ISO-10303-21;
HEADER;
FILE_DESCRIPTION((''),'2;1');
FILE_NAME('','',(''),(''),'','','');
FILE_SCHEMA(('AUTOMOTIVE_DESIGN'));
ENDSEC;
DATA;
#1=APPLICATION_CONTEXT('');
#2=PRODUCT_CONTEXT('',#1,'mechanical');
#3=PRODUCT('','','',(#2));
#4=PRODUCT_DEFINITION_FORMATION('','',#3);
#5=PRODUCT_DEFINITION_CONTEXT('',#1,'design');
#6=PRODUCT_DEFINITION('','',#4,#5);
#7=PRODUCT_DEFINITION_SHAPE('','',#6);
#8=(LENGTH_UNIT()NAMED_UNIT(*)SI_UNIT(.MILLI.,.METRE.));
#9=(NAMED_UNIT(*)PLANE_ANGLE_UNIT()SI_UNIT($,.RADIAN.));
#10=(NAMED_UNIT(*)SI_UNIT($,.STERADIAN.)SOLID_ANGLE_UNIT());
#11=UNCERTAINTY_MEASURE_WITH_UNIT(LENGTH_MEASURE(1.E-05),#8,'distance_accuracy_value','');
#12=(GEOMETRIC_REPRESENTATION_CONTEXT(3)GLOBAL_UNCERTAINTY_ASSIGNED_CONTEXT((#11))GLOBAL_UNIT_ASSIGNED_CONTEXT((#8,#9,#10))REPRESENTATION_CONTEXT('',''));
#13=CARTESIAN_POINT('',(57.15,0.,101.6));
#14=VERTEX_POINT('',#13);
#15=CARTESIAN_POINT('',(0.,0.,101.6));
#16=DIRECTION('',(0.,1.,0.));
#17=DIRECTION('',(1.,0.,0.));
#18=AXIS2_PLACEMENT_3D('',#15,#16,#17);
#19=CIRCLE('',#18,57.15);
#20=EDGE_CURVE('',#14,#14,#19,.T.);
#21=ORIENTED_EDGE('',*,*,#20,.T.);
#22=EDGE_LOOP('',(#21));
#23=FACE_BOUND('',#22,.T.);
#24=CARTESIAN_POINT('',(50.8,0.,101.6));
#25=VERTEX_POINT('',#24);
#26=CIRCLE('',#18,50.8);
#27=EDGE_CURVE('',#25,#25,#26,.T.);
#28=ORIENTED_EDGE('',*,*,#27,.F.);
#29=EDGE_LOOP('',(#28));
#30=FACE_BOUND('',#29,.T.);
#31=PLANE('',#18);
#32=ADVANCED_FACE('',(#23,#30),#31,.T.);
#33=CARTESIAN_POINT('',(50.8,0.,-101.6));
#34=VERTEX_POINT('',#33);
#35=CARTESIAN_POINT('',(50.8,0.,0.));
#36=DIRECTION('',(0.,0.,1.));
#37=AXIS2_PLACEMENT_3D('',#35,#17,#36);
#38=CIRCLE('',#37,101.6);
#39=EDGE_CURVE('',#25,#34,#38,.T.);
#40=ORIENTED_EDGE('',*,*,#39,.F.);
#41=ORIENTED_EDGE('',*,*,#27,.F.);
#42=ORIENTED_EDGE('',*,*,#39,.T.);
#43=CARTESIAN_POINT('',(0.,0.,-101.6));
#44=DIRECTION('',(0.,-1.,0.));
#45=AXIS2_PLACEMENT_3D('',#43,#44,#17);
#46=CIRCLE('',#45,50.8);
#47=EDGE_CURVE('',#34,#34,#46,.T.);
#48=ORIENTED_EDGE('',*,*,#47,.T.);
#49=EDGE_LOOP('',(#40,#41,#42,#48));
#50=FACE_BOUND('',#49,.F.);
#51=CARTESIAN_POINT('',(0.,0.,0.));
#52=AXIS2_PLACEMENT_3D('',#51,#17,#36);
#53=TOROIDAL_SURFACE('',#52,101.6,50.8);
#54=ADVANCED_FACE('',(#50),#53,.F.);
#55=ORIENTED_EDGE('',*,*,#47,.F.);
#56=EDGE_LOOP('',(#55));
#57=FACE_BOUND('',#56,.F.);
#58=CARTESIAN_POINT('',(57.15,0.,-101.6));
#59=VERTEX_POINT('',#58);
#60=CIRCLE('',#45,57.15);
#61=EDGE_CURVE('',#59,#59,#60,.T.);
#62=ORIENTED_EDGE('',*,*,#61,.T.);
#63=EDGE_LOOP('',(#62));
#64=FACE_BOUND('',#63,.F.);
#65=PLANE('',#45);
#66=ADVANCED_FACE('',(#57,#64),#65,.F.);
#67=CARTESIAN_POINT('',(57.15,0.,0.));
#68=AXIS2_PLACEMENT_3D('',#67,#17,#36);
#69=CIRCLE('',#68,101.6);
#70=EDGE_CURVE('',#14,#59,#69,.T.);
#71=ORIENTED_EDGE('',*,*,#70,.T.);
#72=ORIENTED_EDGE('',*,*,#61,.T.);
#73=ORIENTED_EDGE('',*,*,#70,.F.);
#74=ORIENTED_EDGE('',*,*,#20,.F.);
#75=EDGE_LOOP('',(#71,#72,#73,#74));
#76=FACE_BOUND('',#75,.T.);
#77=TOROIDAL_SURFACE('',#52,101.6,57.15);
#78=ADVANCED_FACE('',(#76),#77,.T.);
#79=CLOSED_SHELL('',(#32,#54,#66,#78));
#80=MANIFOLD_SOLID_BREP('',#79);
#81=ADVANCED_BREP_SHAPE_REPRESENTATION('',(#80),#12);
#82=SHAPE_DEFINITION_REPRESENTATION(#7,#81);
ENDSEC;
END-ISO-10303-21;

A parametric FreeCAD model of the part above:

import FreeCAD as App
import Part
import Sketcher
from FreeCAD import Vector
Q = App.Units.Quantity

doc = App.newDocument("Part")
params = doc.addObject("Spreadsheet::Sheet", "Params")
for row, (alias, value) in enumerate([
    ("sketch1_diameter", "4 in"),
    ("sketch1_diameter2", "4.5 in"),
    ("revolution_angle", "180 deg"),
], start=1):
    params.set(f"A{row}", alias)
    params.set(f"B{row}", "=" + value)
    params.setAlias(f"B{row}", alias)

body = doc.addObject("PartDesign::Body", "Body")

sketch1 = doc.addObject("Sketcher::SketchObject", "Sketch")
body.addObject(sketch1)
sketch1.AttachmentSupport = (doc.XZ_Plane, [""])
sketch1.MapMode = "FlatFace"
sketch1.addGeometry([
    Part.Circle(Vector(0, 102, 0), Vector(0, 0, 1), 57),
    Part.Circle(Vector(0, 102, 0), Vector(0, 0, 1), 51),
], False)
sketch1.addConstraint([
    Sketcher.Constraint("Coincident", 1, 3, 0, 3),
    Sketcher.Constraint("PointOnObject", 0, 3, -2),
    Sketcher.Constraint("Diameter", 1, Q("4 in")),
    Sketcher.Constraint("Diameter", 0, Q("4.5 in")),
    Sketcher.Constraint("DistanceY", -1, 1, 0, 3, Q("4 in")),
])
sketch1.setExpression("Constraints[2]", "Params.sketch1_diameter")
sketch1.setExpression("Constraints[3]", "Params.sketch1_diameter2")
revolution = doc.addObject("PartDesign::Revolution", "Revolution")
body.addObject(revolution)
revolution.Profile = sketch1
revolution.ReferenceAxis = (sketch1, ["H_Axis"])
revolution.setExpression("Angle", "Params.revolution_angle")

doc.recompute()
